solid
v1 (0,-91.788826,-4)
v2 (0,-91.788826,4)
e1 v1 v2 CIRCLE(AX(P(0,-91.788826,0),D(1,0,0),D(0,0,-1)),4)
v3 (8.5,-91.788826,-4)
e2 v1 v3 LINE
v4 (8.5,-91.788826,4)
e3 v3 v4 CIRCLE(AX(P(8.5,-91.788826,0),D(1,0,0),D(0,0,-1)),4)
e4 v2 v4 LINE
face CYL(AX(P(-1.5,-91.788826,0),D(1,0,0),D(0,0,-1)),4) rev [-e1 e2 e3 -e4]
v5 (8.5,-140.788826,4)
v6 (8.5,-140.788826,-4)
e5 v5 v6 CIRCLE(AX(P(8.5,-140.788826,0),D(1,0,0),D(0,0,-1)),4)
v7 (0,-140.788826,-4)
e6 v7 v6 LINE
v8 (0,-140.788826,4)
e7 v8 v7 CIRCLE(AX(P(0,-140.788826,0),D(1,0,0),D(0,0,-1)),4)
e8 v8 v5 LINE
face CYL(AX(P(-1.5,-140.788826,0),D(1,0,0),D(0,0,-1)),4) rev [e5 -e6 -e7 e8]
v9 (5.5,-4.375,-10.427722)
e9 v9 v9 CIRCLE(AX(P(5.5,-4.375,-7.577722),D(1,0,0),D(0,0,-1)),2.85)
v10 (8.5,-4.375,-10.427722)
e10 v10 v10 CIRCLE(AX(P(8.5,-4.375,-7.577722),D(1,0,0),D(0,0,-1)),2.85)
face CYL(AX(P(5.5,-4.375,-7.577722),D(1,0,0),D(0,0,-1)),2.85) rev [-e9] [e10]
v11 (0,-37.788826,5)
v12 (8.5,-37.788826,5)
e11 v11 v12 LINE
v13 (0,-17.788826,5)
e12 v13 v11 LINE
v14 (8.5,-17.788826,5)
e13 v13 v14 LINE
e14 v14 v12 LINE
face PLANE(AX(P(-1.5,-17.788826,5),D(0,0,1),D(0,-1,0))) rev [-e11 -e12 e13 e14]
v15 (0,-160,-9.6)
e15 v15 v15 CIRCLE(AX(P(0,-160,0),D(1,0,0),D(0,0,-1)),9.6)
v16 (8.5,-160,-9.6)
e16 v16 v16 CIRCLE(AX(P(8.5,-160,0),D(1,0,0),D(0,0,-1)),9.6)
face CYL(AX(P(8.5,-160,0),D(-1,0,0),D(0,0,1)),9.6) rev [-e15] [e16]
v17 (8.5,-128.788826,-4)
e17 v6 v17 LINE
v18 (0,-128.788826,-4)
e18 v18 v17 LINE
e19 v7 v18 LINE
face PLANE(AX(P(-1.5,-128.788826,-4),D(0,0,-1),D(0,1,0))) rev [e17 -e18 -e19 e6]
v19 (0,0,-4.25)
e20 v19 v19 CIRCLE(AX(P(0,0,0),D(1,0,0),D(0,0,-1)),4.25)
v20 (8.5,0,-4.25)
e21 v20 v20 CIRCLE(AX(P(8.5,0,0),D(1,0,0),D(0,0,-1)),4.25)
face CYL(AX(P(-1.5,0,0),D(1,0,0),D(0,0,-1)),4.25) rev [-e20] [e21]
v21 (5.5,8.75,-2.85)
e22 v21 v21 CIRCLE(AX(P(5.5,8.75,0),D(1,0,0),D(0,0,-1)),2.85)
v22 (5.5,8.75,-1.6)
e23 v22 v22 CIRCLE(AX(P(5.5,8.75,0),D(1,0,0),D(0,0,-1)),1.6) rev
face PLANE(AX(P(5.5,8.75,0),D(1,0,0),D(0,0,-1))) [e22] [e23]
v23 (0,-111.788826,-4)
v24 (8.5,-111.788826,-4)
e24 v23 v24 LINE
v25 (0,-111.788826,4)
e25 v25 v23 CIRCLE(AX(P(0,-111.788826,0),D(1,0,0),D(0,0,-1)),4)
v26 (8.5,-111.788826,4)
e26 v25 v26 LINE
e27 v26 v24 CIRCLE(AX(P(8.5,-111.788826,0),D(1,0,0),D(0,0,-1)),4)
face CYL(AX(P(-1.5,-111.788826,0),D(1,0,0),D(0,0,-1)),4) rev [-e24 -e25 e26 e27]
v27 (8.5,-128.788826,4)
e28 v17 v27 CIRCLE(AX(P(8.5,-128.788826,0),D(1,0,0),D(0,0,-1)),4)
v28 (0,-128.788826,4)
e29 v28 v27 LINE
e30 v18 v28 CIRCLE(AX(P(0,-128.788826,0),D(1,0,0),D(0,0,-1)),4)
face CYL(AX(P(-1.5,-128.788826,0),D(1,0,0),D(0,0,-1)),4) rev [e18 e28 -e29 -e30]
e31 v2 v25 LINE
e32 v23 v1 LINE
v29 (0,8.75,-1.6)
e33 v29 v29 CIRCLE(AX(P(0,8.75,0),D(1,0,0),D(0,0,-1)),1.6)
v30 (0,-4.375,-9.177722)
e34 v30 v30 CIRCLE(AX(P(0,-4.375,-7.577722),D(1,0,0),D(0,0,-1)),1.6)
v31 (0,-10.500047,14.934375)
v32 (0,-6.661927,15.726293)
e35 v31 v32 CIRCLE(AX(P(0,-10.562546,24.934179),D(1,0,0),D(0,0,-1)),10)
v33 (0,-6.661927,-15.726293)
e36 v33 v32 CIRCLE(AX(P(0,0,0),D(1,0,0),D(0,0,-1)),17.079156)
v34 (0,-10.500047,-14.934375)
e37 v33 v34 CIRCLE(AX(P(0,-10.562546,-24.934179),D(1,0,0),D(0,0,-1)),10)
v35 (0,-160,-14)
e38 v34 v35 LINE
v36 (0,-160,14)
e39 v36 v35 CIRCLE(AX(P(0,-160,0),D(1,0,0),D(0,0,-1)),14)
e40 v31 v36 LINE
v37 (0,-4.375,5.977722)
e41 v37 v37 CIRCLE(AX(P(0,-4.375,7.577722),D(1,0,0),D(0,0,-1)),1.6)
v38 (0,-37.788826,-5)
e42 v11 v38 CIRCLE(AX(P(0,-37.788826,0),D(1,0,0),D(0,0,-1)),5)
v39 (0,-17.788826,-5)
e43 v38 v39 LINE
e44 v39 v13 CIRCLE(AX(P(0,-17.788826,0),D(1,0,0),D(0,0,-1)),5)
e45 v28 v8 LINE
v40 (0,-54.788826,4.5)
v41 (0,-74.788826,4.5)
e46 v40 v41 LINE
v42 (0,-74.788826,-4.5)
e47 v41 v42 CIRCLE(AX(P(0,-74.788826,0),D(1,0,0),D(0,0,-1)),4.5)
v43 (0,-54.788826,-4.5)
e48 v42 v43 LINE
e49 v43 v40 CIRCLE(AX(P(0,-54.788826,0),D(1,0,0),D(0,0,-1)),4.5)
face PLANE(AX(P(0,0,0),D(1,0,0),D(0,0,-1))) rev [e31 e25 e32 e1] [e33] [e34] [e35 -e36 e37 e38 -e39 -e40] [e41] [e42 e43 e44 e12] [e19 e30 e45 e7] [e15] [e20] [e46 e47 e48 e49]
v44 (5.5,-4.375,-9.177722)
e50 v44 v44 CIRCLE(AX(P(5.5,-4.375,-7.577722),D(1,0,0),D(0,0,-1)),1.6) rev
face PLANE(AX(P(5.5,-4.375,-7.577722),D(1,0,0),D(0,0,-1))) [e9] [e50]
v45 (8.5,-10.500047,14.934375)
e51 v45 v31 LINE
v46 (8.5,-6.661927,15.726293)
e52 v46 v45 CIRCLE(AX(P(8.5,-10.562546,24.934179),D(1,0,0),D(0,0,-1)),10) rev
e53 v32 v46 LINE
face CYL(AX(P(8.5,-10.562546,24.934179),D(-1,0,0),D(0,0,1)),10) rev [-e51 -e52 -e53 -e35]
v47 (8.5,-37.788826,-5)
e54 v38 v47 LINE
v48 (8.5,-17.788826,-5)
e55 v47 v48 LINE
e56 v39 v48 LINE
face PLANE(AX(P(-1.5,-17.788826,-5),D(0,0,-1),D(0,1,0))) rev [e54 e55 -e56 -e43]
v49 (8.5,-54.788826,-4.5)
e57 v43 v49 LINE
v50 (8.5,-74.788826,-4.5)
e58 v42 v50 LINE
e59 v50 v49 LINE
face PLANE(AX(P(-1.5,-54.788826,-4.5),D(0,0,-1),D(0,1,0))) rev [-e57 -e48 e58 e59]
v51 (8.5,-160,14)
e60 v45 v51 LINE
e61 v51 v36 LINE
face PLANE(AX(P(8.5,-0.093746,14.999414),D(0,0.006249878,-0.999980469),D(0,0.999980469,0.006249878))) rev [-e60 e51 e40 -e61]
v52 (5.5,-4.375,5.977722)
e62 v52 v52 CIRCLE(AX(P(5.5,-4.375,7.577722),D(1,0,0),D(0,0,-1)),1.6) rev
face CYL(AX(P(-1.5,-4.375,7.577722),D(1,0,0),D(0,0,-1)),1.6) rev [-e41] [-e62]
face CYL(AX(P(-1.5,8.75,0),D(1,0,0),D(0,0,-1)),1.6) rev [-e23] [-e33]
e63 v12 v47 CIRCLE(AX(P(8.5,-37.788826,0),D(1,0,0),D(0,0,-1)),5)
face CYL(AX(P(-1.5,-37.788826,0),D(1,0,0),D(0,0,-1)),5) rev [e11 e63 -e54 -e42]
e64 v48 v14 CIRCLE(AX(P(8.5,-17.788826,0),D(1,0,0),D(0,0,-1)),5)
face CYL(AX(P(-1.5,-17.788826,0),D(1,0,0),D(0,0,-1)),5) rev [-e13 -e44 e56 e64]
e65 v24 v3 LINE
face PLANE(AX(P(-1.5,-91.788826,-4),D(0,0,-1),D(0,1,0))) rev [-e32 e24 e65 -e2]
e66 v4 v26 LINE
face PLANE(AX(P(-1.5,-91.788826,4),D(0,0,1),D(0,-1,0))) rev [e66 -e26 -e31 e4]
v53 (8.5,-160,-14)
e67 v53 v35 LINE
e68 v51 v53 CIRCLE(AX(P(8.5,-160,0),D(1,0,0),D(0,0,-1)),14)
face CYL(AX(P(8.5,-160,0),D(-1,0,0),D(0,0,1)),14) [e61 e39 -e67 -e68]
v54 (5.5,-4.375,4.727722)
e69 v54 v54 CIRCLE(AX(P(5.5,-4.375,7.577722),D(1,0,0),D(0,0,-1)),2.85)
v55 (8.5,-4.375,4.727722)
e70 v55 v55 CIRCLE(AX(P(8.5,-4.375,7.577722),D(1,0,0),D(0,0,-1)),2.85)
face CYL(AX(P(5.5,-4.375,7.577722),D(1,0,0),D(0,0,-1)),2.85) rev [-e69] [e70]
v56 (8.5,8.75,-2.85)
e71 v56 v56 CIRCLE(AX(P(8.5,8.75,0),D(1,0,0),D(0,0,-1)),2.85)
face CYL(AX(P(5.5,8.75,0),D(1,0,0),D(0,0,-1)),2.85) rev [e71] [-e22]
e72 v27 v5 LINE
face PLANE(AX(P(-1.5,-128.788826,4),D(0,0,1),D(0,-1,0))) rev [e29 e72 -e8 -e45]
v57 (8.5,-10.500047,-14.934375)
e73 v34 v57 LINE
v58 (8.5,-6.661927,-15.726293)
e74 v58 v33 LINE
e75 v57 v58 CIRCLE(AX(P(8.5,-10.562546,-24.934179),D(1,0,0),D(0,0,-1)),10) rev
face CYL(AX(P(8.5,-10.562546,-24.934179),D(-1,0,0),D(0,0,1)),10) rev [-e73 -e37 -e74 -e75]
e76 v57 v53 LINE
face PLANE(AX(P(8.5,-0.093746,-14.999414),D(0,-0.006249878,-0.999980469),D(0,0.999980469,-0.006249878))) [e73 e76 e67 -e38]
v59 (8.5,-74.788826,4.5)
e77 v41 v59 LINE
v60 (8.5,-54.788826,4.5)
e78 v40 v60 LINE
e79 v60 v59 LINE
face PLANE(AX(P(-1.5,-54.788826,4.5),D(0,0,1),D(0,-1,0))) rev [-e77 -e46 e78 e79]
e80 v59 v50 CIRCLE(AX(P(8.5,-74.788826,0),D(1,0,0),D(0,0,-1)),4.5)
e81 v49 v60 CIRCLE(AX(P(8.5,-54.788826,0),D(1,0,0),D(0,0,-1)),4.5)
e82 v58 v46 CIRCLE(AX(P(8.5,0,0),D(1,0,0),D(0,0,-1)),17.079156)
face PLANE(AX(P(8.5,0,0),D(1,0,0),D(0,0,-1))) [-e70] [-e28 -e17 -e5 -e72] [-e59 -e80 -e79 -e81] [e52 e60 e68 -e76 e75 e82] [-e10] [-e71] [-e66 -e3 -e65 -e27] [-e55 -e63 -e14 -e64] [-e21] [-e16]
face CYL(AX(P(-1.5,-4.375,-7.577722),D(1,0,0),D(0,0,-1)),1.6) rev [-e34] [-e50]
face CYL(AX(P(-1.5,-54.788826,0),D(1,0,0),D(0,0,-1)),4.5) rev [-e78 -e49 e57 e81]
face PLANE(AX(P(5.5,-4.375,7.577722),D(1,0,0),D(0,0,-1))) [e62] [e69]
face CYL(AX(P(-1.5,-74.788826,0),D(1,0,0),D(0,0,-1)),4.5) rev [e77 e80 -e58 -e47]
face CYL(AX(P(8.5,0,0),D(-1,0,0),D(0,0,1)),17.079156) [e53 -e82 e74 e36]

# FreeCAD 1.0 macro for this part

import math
import FreeCAD as App
import Part
import Sketcher
Q = App.Units.Quantity


def edges_at(feature, points):
    """Names of the edges that pass closest to the given points."""
    edges = feature.Shape.Edges
    near = lambda p: min(range(len(edges)), key=lambda i: edges[i].distToShape(Part.Vertex(*p))[0])
    return sorted({f"Edge{near(p) + 1}" for p in points})

doc = App.newDocument("Part")
params = doc.addObject("Spreadsheet::Sheet", "Params")
for row, (alias, value) in enumerate([
    ("sketch1_radius", "14 mm"),
    ("sketch1_diameter", "19.2 mm"),
    ("pad1_length", "8.5 mm"),
    ("sketch2_diameter", "8.5 mm"),
    ("sketch2_diameter2", "3.2 mm"),
    ("pocket1_length", "10 mm"),
    ("sketch3_diameter", "5.7 mm"),
    ("pocket2_length", "3 mm"),
    ("sketch4_radius", "5 mm"),
    ("sketch4_radius2", "4 mm"),
    ("sketch4_radius3", "4.5 mm"),
    ("sketch4_width", "20 mm"),
    ("sketch4_width2", "12 mm"),
    ("pocket3_length", "10 mm"),
    ("fillet_radius", "10 mm"),
], start=1):
    params.set(f"A{row}", alias)
    params.set(f"B{row}", "=" + value)
    params.setAlias(f"B{row}", alias)

body = doc.addObject("PartDesign::Body", "Body")

# Sketch on YZ plane
sketch1 = body.newObject("Sketcher::SketchObject", "Sketch")
sketch1.AttachmentSupport = (doc.getObject("YZ_Plane"), [""])
sketch1.MapMode = "FlatFace"
sketch1.addGeometry([
    Part.LineSegment(App.Vector(-160, -14, 0), App.Vector(-8, -15, 0)),  # 0
    Part.ArcOfCircle(Part.Circle(App.Vector(0, 0, 0), App.Vector(0, 0, 1), 17), math.radians(-119), math.radians(119)),  # 1
    Part.LineSegment(App.Vector(-8, 15, 0), App.Vector(-160, 14, 0)),  # 2
    Part.ArcOfCircle(Part.Circle(App.Vector(-160, 0, 0), App.Vector(0, 0, 1), 14), math.radians(90), math.radians(270)),  # 3
    Part.Circle(App.Vector(-160, 0, 0), App.Vector(0, 0, 1), 10),  # 4
], False)
sketch1.addConstraint([
    Sketcher.Constraint("Coincident", 0, 2, 1, 1),
    Sketcher.Constraint("Coincident", 1, 2, 2, 1),
    Sketcher.Constraint("Coincident", 2, 2, 3, 1),
    Sketcher.Constraint("Coincident", 3, 2, 0, 1),
    Sketcher.Constraint("Coincident", 1, 3, -1, 1),
    Sketcher.Constraint("Coincident", 4, 3, 3, 3),
    Sketcher.Constraint("Symmetric", 2, 2, 3, 2, -1),
    Sketcher.Constraint("Vertical", 0, 2, 1, 2),
    Sketcher.Constraint("Vertical", 4, 3, 2, 2),
    Sketcher.Constraint("Radius", 3, Q("14 mm")),
    Sketcher.Constraint("Diameter", 4, Q("19.2 mm")),
    Sketcher.Constraint("DistanceX", 3, 3, -1, 1, Q("160 mm")),
    Sketcher.Constraint("Radius", 1, Q("17.079156 mm")),
    Sketcher.Constraint("Distance", 0, Q("151.741981 mm")),
])
sketch1.setExpression("Constraints[9]", "Params.sketch1_radius")
sketch1.setExpression("Constraints[10]", "Params.sketch1_diameter")
pad1 = body.newObject("PartDesign::Pad", "Pad")
pad1.Profile = sketch1
pad1.setExpression("Length", "Params.pad1_length")

# Sketch on YZ plane
sketch2 = body.newObject("Sketcher::SketchObject", "Sketch001")
sketch2.AttachmentSupport = (doc.getObject("YZ_Plane"), [""])
sketch2.MapMode = "FlatFace"
sketch2.AttachmentOffset = App.Placement(App.Vector(0, 0, 8.5), App.Rotation())
sketch2.addGeometry([
    Part.Circle(App.Vector(0, 0, 0), App.Vector(0, 0, 1), 4.2),
    Part.Circle(App.Vector(8.8, 0, 0), App.Vector(0, 0, 1), 1.6),
    Part.Circle(App.Vector(-4.4, -7.6, 0), App.Vector(0, 0, 1), 1.6),
    Part.Circle(App.Vector(-4.4, 7.6, 0), App.Vector(0, 0, 1), 1.6),
], False)
sketch2.addConstraint([
    Sketcher.Constraint("Coincident", 0, 3, -1, 1),
    Sketcher.Constraint("Equal", 1, 2),
    Sketcher.Constraint("Equal", 2, 3),
    Sketcher.Constraint("Symmetric", 2, 3, 3, 3, -1),
    Sketcher.Constraint("PointOnObject", 1, 3, -1),
    Sketcher.Constraint("Diameter", 0, Q("8.5 mm")),
    Sketcher.Constraint("Diameter", 1, Q("3.2 mm")),
    Sketcher.Constraint("DistanceX", -1, 1, 1, 3, Q("8.75 mm")),
    Sketcher.Constraint("DistanceX", 2, 3, -1, 1, Q("4.375 mm")),
    Sketcher.Constraint("DistanceY", 2, 3, -1, 1, Q("7.577722 mm")),
])
sketch2.setExpression("Constraints[5]", "Params.sketch2_diameter")
sketch2.setExpression("Constraints[6]", "Params.sketch2_diameter2")
pocket1 = body.newObject("PartDesign::Pocket", "Pocket")
pocket1.Profile = sketch2
pocket1.setExpression("Length", "Params.pocket1_length")

# Sketch on YZ plane
sketch3 = body.newObject("Sketcher::SketchObject", "Sketch002")
sketch3.AttachmentSupport = (doc.getObject("YZ_Plane"), [""])
sketch3.MapMode = "FlatFace"
sketch3.AttachmentOffset = App.Placement(App.Vector(0, 0, 8.5), App.Rotation())
sketch3.addGeometry([
    Part.Circle(App.Vector(8.8, 0, 0), App.Vector(0, 0, 1), 2.9),
    Part.Circle(App.Vector(-4.4, -7.6, 0), App.Vector(0, 0, 1), 2.9),
    Part.Circle(App.Vector(-4.4, 7.6, 0), App.Vector(0, 0, 1), 2.9),
], False)
sketch3.addConstraint([
    Sketcher.Constraint("Equal", 0, 1),
    Sketcher.Constraint("Equal", 1, 2),
    Sketcher.Constraint("Symmetric", 1, 3, 2, 3, -1),
    Sketcher.Constraint("PointOnObject", 0, 3, -1),
    Sketcher.Constraint("Diameter", 0, Q("5.7 mm")),
    Sketcher.Constraint("DistanceX", -1, 1, 0, 3, Q("8.75 mm")),
    Sketcher.Constraint("DistanceX", 1, 3, -1, 1, Q("4.375 mm")),
    Sketcher.Constraint("DistanceY", 1, 3, -1, 1, Q("7.577722 mm")),
])
sketch3.setExpression("Constraints[4]", "Params.sketch3_diameter")
pocket2 = body.newObject("PartDesign::Pocket", "Pocket001")
pocket2.Profile = sketch3
pocket2.setExpression("Length", "Params.pocket2_length")

# Sketch on YZ plane
sketch4 = body.newObject("Sketcher::SketchObject", "Sketch003")
sketch4.AttachmentSupport = (doc.getObject("YZ_Plane"), [""])
sketch4.MapMode = "FlatFace"
sketch4.AttachmentOffset = App.Placement(App.Vector(0, 0, 8.5), App.Rotation())
sketch4.addGeometry([
    Part.LineSegment(App.Vector(-37.8, -5, 0), App.Vector(-17.8, -5, 0)),  # 0
    Part.ArcOfCircle(Part.Circle(App.Vector(-17.8, 0, 0), App.Vector(0, 0, 1), 5), math.radians(-90), math.radians(90)),  # 1
    Part.LineSegment(App.Vector(-17.8, 5, 0), App.Vector(-37.8, 5, 0)),  # 2
    Part.ArcOfCircle(Part.Circle(App.Vector(-37.8, 0, 0), App.Vector(0, 0, 1), 5), math.radians(90), math.radians(270)),  # 3
    Part.LineSegment(App.Vector(-74.8, -4.5, 0), App.Vector(-54.8, -4.5, 0)),  # 4
    Part.ArcOfCircle(Part.Circle(App.Vector(-54.8, 0, 0), App.Vector(0, 0, 1), 4.5), math.radians(-90), math.radians(90)),  # 5
    Part.LineSegment(App.Vector(-54.8, 4.5, 0), App.Vector(-74.8, 4.5, 0)),  # 6
    Part.ArcOfCircle(Part.Circle(App.Vector(-74.8, 0, 0), App.Vector(0, 0, 1), 4.5), math.radians(90), math.radians(270)),  # 7
    Part.LineSegment(App.Vector(-111.8, -4, 0), App.Vector(-91.8, -4, 0)),  # 8
    Part.ArcOfCircle(Part.Circle(App.Vector(-91.8, 0, 0), App.Vector(0, 0, 1), 4), math.radians(-90), math.radians(90)),  # 9
    Part.LineSegment(App.Vector(-91.8, 4, 0), App.Vector(-111.8, 4, 0)),  # 10
    Part.ArcOfCircle(Part.Circle(App.Vector(-111.8, 0, 0), App.Vector(0, 0, 1), 4), math.radians(90), math.radians(270)),  # 11
    Part.LineSegment(App.Vector(-140.8, -4, 0), App.Vector(-128.8, -4, 0)),  # 12
    Part.ArcOfCircle(Part.Circle(App.Vector(-128.8, 0, 0), App.Vector(0, 0, 1), 4), math.radians(-90), math.radians(90)),  # 13
    Part.LineSegment(App.Vector(-128.8, 4, 0), App.Vector(-140.8, 4, 0)),  # 14
    Part.ArcOfCircle(Part.Circle(App.Vector(-140.8, 0, 0), App.Vector(0, 0, 1), 4), math.radians(90), math.radians(270)),  # 15
], False)
sketch4.addConstraint([
    Sketcher.Constraint("Tangent", 0, 2, 1, 1),
    Sketcher.Constraint("Tangent", 1, 2, 2, 1),
    Sketcher.Constraint("Tangent", 2, 2, 3, 1),
    Sketcher.Constraint("Tangent", 3, 2, 0, 1),
    Sketcher.Constraint("Tangent", 4, 2, 5, 1),
    Sketcher.Constraint("Tangent", 5, 2, 6, 1),
    Sketcher.Constraint("Tangent", 6, 2, 7, 1),
    Sketcher.Constraint("Tangent", 7, 2, 4, 1),
    Sketcher.Constraint("Tangent", 8, 2, 9, 1),
    Sketcher.Constraint("Tangent", 9, 2, 10, 1),
    Sketcher.Constraint("Tangent", 10, 2, 11, 1),
    Sketcher.Constraint("Tangent", 11, 2, 8, 1),
    Sketcher.Constraint("Tangent", 12, 2, 13, 1),
    Sketcher.Constraint("Tangent", 13, 2, 14, 1),
    Sketcher.Constraint("Tangent", 14, 2, 15, 1),
    Sketcher.Constraint("Tangent", 15, 2, 12, 1),
    Sketcher.Constraint("Horizontal", 0),
    Sketcher.Constraint("Horizontal", 2),
    Sketcher.Constraint("Horizontal", 4),
    Sketcher.Constraint("Horizontal", 6),
    Sketcher.Constraint("Horizontal", 8),
    Sketcher.Constraint("Horizontal", 10),
    Sketcher.Constraint("Horizontal", 12),
    Sketcher.Constraint("Horizontal", 14),
    Sketcher.Constraint("Equal", 11, 13),
    Sketcher.Constraint("PointOnObject", 1, 3, -1),
    Sketcher.Constraint("PointOnObject", 5, 3, -1),
    Sketcher.Constraint("PointOnObject", 9, 3, -1),
    Sketcher.Constraint("PointOnObject", 13, 3, -1),
    Sketcher.Constraint("Equal", 2, 4),
    Sketcher.Constraint("Equal", 6, 8),
    Sketcher.Constraint("Radius", 1, Q("5 mm")),
    Sketcher.Constraint("Radius", 9, Q("4 mm")),
    Sketcher.Constraint("Radius", 5, Q("4.5 mm")),
    Sketcher.Constraint("DistanceX", 0, 1, 0, 2, Q("20 mm")),
    Sketcher.Constraint("DistanceX", 12, 1, 12, 2, Q("12 mm")),
    Sketcher.Constraint("DistanceX", 5, 3, 3, 3, Q("17 mm")),
    Sketcher.Constraint("DistanceX", 9, 3, 7, 3, Q("17 mm")),
    Sketcher.Constraint("DistanceX", 13, 3, 11, 3, Q("17 mm")),
    Sketcher.Constraint("DistanceX", 1, 3, -1, 1, Q("17.788826 mm")),
])
sketch4.setExpression("Constraints[31]", "Params.sketch4_radius")
sketch4.setExpression("Constraints[32]", "Params.sketch4_radius2")
sketch4.setExpression("Constraints[33]", "Params.sketch4_radius3")
sketch4.setExpression("Constraints[34]", "Params.sketch4_width")
sketch4.setExpression("Constraints[35]", "Params.sketch4_width2")
pocket3 = body.newObject("PartDesign::Pocket", "Pocket002")
pocket3.Profile = sketch4
pocket3.setExpression("Length", "Params.pocket3_length")
doc.recompute()

fillet = body.newObject("PartDesign::Fillet", "Fillet")
fillet.Base = (pocket3, edges_at(pocket3, [(4.25, -8.261, 14.948), (4.25, -8.261, -14.948)]))
fillet.setExpression("Radius", "Params.fillet_radius")

doc.recompute()
